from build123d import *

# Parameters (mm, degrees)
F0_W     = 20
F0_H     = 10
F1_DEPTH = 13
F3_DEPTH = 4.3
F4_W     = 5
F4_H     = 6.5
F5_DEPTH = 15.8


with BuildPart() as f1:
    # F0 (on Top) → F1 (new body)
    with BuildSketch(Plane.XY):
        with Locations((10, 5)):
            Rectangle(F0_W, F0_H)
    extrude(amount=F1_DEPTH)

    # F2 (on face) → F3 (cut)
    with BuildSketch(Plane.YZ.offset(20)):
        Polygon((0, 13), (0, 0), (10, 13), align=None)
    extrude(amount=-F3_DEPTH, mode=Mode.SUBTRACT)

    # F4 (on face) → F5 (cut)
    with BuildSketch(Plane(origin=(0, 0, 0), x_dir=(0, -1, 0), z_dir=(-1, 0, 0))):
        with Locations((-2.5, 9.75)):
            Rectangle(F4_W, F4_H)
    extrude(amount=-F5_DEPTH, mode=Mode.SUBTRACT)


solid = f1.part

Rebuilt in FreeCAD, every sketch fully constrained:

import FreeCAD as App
import Part
import Sketcher
Q = App.Units.Quantity


def add_polygon(sketch, points):
    """Adds a closed chain of lines whose ends are joined by coincident constraints."""
    first, n = sketch.GeometryCount, len(points)
    for a, b in zip(points, points[1:] + points[:1]):
        sketch.addGeometry(Part.LineSegment(App.Vector(*a, 0), App.Vector(*b, 0)), False)
    for i in range(n):
        sketch.addConstraint(Sketcher.Constraint("Coincident", first + i, 2, first + (i + 1) % n, 1))

doc = App.newDocument("Part")
body = doc.addObject("PartDesign::Body", "Body")

sketch1 = body.newObject("Sketcher::SketchObject", "Sketch")
sketch1.AttachmentSupport = (doc.getObject("XY_Plane"), [""])
sketch1.MapMode = "FlatFace"
add_polygon(sketch1, [(0, 10), (0, 0), (20, 0), (20, 10)])
sketch1.addConstraint([
    Sketcher.Constraint("Vertical", 0),
    Sketcher.Constraint("Horizontal", 1),
    Sketcher.Constraint("Vertical", 2),
    Sketcher.Constraint("Horizontal", 3),
    Sketcher.Constraint("Coincident", 0, 2, -1, 1),
    Sketcher.Constraint("DistanceX", 1, 1, 1, 2, Q("20 mm")),
    Sketcher.Constraint("DistanceY", 0, 2, 0, 1, Q("10 mm")),
])
pad1 = body.newObject("PartDesign::Pad", "Pad")
pad1.Profile = sketch1
pad1.Length = 13

sketch2 = body.newObject("Sketcher::SketchObject", "Sketch001")
sketch2.AttachmentSupport = (doc.getObject("YZ_Plane"), [""])
sketch2.MapMode = "FlatFace"
sketch2.AttachmentOffset = App.Placement(App.Vector(0, 0, 20), App.Rotation())
add_polygon(sketch2, [(0, 13), (0, 0), (10, 13)])
sketch2.addConstraint([
    Sketcher.Constraint("Vertical", 0),
    Sketcher.Constraint("Horizontal", 2),
    Sketcher.Constraint("Coincident", 0, 2, -1, 1),
    Sketcher.Constraint("DistanceX", 2, 2, 2, 1, Q("10 mm")),
    Sketcher.Constraint("DistanceY", 0, 2, 0, 1, Q("13 mm")),
])
pocket1 = body.newObject("PartDesign::Pocket", "Pocket")
pocket1.Profile = sketch2
pocket1.Length = 4.3

sketch3 = body.newObject("Sketcher::SketchObject", "Sketch002")
sketch3.AttachmentSupport = (doc.getObject("YZ_Plane"), [""])
sketch3.MapMode = "FlatFace"
add_polygon(sketch3, [(5, 13), (5, 6.5), (0, 6.5), (0, 13)])
sketch3.addConstraint([
    Sketcher.Constraint("Vertical", 0),
    Sketcher.Constraint("Horizontal", 1),
    Sketcher.Constraint("Vertical", 2),
    Sketcher.Constraint("Horizontal", 3),
    Sketcher.Constraint("PointOnObject", 1, 2, -2),
    Sketcher.Constraint("DistanceX", 1, 2, 1, 1, Q("5 mm")),
    Sketcher.Constraint("DistanceY", 0, 2, 0, 1, Q("6.5 mm")),
    Sketcher.Constraint("DistanceY", -1, 1, 2, 2, Q("13 mm")),
])
pocket2 = body.newObject("PartDesign::Pocket", "Pocket001")
pocket2.Profile = sketch3
pocket2.Length = 15.8
pocket2.Reversed = True

doc.recompute()
